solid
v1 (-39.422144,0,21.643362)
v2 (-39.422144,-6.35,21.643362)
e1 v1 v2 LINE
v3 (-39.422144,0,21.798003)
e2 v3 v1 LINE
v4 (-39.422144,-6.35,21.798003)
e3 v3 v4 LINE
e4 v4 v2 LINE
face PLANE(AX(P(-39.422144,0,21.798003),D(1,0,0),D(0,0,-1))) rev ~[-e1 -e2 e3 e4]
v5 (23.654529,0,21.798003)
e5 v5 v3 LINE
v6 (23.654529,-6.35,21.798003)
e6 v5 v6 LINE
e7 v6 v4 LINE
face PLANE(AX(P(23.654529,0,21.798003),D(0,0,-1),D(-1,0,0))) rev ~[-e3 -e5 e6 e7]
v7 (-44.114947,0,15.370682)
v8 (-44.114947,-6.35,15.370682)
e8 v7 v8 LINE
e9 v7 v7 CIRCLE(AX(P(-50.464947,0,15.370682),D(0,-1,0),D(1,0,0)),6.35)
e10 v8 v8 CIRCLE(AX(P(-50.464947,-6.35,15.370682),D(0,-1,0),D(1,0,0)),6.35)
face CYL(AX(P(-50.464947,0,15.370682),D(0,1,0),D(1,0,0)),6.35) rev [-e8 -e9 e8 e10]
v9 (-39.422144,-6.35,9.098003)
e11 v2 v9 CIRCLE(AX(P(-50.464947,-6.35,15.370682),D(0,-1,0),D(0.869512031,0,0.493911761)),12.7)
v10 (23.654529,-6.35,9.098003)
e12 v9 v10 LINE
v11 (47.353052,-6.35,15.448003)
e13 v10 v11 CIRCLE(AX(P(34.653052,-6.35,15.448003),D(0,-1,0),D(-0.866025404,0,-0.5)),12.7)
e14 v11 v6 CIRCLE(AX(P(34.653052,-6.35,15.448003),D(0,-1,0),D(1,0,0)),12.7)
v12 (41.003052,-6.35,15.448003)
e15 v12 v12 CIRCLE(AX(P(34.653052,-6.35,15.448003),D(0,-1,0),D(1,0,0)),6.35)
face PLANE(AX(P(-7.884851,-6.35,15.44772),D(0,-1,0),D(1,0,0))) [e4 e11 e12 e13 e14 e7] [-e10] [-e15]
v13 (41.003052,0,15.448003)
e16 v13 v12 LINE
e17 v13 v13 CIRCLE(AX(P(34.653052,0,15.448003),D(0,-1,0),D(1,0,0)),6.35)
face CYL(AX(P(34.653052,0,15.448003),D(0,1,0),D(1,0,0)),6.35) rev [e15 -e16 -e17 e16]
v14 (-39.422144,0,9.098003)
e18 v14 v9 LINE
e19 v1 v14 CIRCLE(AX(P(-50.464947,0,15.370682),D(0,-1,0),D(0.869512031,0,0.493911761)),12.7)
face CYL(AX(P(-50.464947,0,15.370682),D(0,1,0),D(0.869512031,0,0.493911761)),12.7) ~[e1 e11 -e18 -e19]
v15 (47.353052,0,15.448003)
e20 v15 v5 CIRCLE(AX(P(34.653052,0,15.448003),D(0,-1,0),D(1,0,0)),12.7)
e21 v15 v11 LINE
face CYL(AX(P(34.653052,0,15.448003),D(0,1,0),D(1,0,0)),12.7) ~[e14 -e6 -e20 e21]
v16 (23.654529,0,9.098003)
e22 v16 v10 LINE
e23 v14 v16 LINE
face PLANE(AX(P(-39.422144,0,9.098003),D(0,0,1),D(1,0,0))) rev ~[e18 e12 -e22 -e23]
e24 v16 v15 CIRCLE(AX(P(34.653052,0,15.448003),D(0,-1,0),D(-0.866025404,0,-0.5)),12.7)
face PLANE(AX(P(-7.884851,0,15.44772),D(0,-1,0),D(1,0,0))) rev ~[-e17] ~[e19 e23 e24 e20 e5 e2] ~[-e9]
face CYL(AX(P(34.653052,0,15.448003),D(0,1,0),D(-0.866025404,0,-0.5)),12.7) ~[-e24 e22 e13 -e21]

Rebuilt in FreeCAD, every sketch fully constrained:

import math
import FreeCAD as App
import Part
import Sketcher

V = App.Vector
Q = App.Units.Quantity

doc = App.newDocument("Part")
body = doc.addObject("PartDesign::Body", "Body")

sketch1 = doc.addObject("Sketcher::SketchObject", "Sketch")
body.addObject(sketch1)
sketch1.AttachmentSupport = (doc.XZ_Plane, [""])
sketch1.MapMode = "FlatFace"
sketch1.addGeometry(Part.LineSegment(V(23.654529, 21.798003, 0), V(-39.422144, 21.798003, 0)), False)
sketch1.addGeometry(Part.LineSegment(V(-39.422144, 21.798003, 0), V(-39.422144, 21.643362, 0)), False)
sketch1.addGeometry(Part.ArcOfCircle(Part.Circle(V(-50.464947, 15.370682, 0), V(0, 0, 1), 12.7), math.radians(29.598016), math.radians(330.401984)), False)
sketch1.addGeometry(Part.LineSegment(V(-39.422144, 9.098003, 0), V(23.654529, 9.098003, 0)), False)
sketch1.addGeometry(Part.ArcOfCircle(Part.Circle(V(34.653052, 15.448003, 0), V(0, 0, 1), 12.7), math.radians(-150), math.radians(0)), False)
sketch1.addGeometry(Part.ArcOfCircle(Part.Circle(V(34.653052, 15.448003, 0), V(0, 0, 1), 12.7), math.radians(0), math.radians(150)), False)
sketch1.addGeometry(Part.Circle(V(-50.464947, 15.370682, 0), V(0, 0, 1), 6.35), False)
sketch1.addGeometry(Part.Circle(V(34.653052, 15.448003, 0), V(0, 0, 1), 6.35), False)
sketch1.addConstraint(Sketcher.Constraint("Coincident", 0, 2, 1, 1))
sketch1.addConstraint(Sketcher.Constraint("Coincident", 1, 2, 2, 1))
sketch1.addConstraint(Sketcher.Constraint("Coincident", 2, 2, 3, 1))
sketch1.addConstraint(Sketcher.Constraint("Coincident", 3, 2, 4, 1))
sketch1.addConstraint(Sketcher.Constraint("Tangent", 4, 2, 5, 1))
sketch1.addConstraint(Sketcher.Constraint("Coincident", 5, 2, 0, 1))
sketch1.addConstraint(Sketcher.Constraint("Horizontal", 0))
sketch1.addConstraint(Sketcher.Constraint("Vertical", 1))
sketch1.addConstraint(Sketcher.Constraint("Horizontal", 3))
sketch1.addConstraint(Sketcher.Constraint("Coincident", 6, 3, 2, 3))
sketch1.addConstraint(Sketcher.Constraint("Coincident", 7, 3, 4, 3))
sketch1.addConstraint(Sketcher.Constraint("Equal", 2, 4))
sketch1.addConstraint(Sketcher.Constraint("Equal", 4, 5))
sketch1.addConstraint(Sketcher.Constraint("Equal", 6, 7))
sketch1.addConstraint(Sketcher.Constraint("Horizontal", 7, 3, 4, 2))
sketch1.addConstraint(Sketcher.Constraint("Vertical", 1, 2, 2, 2))
sketch1.addConstraint(Sketcher.Constraint("Vertical", 3, 2, 5, 2))
sketch1.addConstraint(Sketcher.Constraint("Diameter", 6, Q("0.5 in")))
sketch1.addConstraint(Sketcher.Constraint("Radius", 2, Q("0.5 in")))
sketch1.addConstraint(Sketcher.Constraint("DistanceY", 2, 2, 0, 2, Q("0.5 in")))
sketch1.addConstraint(Sketcher.Constraint("DistanceY", 1, 2, 1, 1, 0.154641))
sketch1.addConstraint(Sketcher.Constraint("DistanceX", 2, 3, 4, 3, 85.117999))
sketch1.addConstraint(Sketcher.Constraint("DistanceX", -1, 1, 4, 3, 34.653052))
sketch1.addConstraint(Sketcher.Constraint("DistanceY", -1, 1, 1, 2, 21.643362))
pad1 = doc.addObject("PartDesign::Pad", "Pad")
body.addObject(pad1)
pad1.Profile = sketch1
pad1.Length = Q("0.25 in")

doc.recompute()
